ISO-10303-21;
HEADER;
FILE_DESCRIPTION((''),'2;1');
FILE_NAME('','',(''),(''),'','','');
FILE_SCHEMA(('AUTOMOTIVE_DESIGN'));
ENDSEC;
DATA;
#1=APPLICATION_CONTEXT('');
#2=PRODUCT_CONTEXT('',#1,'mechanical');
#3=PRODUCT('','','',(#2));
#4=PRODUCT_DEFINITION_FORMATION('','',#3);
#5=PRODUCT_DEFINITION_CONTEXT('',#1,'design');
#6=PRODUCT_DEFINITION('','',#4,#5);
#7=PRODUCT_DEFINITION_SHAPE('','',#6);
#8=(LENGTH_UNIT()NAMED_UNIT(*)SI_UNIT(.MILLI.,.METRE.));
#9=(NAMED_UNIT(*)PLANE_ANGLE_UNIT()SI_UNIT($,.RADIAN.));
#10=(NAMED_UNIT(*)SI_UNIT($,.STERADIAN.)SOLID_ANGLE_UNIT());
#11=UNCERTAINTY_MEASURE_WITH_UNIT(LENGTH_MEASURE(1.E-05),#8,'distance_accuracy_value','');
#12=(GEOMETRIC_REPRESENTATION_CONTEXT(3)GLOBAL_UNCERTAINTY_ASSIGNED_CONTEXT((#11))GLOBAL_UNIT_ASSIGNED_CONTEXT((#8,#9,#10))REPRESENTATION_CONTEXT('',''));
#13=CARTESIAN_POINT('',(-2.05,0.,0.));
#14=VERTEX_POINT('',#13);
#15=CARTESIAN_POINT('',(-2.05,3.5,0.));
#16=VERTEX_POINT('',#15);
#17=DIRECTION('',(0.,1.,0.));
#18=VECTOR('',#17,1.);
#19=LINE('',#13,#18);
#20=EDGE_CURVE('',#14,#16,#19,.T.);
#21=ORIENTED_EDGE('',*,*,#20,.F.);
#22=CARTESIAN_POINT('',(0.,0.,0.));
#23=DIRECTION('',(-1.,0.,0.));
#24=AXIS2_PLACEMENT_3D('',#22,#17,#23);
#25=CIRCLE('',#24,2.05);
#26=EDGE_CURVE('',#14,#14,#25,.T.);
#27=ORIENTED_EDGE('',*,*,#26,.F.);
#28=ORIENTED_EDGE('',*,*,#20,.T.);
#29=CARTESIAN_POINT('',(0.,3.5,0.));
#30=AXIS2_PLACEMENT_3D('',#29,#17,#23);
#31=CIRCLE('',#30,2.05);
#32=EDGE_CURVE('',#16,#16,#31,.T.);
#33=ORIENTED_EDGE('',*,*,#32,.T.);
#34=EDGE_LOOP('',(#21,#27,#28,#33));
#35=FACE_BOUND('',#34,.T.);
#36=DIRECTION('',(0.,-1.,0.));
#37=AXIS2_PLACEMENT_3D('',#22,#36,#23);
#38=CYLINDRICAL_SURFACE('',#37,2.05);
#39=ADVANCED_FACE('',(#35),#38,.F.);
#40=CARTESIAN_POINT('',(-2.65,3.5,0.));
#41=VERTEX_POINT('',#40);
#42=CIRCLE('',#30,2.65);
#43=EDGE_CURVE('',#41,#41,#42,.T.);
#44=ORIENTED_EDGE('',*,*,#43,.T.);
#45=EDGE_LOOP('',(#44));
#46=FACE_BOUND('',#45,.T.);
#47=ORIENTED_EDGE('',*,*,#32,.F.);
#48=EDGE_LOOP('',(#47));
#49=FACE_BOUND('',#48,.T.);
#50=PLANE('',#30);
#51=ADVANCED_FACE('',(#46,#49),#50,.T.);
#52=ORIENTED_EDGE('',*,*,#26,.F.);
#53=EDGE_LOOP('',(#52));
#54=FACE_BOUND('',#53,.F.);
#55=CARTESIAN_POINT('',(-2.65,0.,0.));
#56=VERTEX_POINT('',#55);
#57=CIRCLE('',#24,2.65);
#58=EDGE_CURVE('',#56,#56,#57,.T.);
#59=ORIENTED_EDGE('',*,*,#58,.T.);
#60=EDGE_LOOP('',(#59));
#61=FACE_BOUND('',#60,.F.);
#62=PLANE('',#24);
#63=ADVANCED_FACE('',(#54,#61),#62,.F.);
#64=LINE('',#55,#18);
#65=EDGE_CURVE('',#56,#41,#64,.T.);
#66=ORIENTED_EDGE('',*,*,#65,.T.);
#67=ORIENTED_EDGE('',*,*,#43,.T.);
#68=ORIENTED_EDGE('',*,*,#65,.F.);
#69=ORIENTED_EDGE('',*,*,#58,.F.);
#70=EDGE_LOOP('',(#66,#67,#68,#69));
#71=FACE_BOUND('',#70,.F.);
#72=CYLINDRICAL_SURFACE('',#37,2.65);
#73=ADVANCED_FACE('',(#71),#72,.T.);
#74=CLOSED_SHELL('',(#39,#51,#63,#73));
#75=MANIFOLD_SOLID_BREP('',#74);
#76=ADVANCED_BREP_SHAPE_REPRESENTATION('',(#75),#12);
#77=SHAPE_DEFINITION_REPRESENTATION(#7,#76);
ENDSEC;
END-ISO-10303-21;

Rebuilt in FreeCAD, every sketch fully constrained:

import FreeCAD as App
import Part
import Sketcher
Q = App.Units.Quantity

doc = App.newDocument("Part")
params = doc.addObject("Spreadsheet::Sheet", "Params")
for row, (alias, value) in enumerate([
    ("sketch1_diameter", "5.3 mm"),
    ("sketch1_diameter2", "4.1 mm"),
    ("pad1_length", "3.5 mm"),
], start=1):
    params.set(f"A{row}", alias)
    params.set(f"B{row}", "=" + value)
    params.setAlias(f"B{row}", alias)

body = doc.addObject("PartDesign::Body", "Body")

sketch1 = body.newObject("Sketcher::SketchObject", "Sketch")
sketch1.AttachmentSupport = (doc.getObject("XZ_Plane"), [""])
sketch1.MapMode = "FlatFace"
sketch1.addGeometry(Part.Circle(App.Vector(0, 0, 0), App.Vector(0, 0, 1), 2.6), False)
sketch1.addGeometry(Part.Circle(App.Vector(0, 0, 0), App.Vector(0, 0, 1), 2), False)
sketch1.addConstraint(Sketcher.Constraint("Coincident", 0, 3, -1, 1))
sketch1.addConstraint(Sketcher.Constraint("Coincident", 1, 3, -1, 1))
sketch1.addConstraint(Sketcher.Constraint("Diameter", 0, Q("5.3 mm")))
sketch1.addConstraint(Sketcher.Constraint("Diameter", 1, Q("4.1 mm")))
sketch1.setExpression("Constraints[2]", "Params.sketch1_diameter")
sketch1.setExpression("Constraints[3]", "Params.sketch1_diameter2")
pad1 = body.newObject("PartDesign::Pad", "Pad")
pad1.Profile = sketch1
pad1.setExpression("Length", "Params.pad1_length")
pad1.Reversed = True

doc.recompute()
